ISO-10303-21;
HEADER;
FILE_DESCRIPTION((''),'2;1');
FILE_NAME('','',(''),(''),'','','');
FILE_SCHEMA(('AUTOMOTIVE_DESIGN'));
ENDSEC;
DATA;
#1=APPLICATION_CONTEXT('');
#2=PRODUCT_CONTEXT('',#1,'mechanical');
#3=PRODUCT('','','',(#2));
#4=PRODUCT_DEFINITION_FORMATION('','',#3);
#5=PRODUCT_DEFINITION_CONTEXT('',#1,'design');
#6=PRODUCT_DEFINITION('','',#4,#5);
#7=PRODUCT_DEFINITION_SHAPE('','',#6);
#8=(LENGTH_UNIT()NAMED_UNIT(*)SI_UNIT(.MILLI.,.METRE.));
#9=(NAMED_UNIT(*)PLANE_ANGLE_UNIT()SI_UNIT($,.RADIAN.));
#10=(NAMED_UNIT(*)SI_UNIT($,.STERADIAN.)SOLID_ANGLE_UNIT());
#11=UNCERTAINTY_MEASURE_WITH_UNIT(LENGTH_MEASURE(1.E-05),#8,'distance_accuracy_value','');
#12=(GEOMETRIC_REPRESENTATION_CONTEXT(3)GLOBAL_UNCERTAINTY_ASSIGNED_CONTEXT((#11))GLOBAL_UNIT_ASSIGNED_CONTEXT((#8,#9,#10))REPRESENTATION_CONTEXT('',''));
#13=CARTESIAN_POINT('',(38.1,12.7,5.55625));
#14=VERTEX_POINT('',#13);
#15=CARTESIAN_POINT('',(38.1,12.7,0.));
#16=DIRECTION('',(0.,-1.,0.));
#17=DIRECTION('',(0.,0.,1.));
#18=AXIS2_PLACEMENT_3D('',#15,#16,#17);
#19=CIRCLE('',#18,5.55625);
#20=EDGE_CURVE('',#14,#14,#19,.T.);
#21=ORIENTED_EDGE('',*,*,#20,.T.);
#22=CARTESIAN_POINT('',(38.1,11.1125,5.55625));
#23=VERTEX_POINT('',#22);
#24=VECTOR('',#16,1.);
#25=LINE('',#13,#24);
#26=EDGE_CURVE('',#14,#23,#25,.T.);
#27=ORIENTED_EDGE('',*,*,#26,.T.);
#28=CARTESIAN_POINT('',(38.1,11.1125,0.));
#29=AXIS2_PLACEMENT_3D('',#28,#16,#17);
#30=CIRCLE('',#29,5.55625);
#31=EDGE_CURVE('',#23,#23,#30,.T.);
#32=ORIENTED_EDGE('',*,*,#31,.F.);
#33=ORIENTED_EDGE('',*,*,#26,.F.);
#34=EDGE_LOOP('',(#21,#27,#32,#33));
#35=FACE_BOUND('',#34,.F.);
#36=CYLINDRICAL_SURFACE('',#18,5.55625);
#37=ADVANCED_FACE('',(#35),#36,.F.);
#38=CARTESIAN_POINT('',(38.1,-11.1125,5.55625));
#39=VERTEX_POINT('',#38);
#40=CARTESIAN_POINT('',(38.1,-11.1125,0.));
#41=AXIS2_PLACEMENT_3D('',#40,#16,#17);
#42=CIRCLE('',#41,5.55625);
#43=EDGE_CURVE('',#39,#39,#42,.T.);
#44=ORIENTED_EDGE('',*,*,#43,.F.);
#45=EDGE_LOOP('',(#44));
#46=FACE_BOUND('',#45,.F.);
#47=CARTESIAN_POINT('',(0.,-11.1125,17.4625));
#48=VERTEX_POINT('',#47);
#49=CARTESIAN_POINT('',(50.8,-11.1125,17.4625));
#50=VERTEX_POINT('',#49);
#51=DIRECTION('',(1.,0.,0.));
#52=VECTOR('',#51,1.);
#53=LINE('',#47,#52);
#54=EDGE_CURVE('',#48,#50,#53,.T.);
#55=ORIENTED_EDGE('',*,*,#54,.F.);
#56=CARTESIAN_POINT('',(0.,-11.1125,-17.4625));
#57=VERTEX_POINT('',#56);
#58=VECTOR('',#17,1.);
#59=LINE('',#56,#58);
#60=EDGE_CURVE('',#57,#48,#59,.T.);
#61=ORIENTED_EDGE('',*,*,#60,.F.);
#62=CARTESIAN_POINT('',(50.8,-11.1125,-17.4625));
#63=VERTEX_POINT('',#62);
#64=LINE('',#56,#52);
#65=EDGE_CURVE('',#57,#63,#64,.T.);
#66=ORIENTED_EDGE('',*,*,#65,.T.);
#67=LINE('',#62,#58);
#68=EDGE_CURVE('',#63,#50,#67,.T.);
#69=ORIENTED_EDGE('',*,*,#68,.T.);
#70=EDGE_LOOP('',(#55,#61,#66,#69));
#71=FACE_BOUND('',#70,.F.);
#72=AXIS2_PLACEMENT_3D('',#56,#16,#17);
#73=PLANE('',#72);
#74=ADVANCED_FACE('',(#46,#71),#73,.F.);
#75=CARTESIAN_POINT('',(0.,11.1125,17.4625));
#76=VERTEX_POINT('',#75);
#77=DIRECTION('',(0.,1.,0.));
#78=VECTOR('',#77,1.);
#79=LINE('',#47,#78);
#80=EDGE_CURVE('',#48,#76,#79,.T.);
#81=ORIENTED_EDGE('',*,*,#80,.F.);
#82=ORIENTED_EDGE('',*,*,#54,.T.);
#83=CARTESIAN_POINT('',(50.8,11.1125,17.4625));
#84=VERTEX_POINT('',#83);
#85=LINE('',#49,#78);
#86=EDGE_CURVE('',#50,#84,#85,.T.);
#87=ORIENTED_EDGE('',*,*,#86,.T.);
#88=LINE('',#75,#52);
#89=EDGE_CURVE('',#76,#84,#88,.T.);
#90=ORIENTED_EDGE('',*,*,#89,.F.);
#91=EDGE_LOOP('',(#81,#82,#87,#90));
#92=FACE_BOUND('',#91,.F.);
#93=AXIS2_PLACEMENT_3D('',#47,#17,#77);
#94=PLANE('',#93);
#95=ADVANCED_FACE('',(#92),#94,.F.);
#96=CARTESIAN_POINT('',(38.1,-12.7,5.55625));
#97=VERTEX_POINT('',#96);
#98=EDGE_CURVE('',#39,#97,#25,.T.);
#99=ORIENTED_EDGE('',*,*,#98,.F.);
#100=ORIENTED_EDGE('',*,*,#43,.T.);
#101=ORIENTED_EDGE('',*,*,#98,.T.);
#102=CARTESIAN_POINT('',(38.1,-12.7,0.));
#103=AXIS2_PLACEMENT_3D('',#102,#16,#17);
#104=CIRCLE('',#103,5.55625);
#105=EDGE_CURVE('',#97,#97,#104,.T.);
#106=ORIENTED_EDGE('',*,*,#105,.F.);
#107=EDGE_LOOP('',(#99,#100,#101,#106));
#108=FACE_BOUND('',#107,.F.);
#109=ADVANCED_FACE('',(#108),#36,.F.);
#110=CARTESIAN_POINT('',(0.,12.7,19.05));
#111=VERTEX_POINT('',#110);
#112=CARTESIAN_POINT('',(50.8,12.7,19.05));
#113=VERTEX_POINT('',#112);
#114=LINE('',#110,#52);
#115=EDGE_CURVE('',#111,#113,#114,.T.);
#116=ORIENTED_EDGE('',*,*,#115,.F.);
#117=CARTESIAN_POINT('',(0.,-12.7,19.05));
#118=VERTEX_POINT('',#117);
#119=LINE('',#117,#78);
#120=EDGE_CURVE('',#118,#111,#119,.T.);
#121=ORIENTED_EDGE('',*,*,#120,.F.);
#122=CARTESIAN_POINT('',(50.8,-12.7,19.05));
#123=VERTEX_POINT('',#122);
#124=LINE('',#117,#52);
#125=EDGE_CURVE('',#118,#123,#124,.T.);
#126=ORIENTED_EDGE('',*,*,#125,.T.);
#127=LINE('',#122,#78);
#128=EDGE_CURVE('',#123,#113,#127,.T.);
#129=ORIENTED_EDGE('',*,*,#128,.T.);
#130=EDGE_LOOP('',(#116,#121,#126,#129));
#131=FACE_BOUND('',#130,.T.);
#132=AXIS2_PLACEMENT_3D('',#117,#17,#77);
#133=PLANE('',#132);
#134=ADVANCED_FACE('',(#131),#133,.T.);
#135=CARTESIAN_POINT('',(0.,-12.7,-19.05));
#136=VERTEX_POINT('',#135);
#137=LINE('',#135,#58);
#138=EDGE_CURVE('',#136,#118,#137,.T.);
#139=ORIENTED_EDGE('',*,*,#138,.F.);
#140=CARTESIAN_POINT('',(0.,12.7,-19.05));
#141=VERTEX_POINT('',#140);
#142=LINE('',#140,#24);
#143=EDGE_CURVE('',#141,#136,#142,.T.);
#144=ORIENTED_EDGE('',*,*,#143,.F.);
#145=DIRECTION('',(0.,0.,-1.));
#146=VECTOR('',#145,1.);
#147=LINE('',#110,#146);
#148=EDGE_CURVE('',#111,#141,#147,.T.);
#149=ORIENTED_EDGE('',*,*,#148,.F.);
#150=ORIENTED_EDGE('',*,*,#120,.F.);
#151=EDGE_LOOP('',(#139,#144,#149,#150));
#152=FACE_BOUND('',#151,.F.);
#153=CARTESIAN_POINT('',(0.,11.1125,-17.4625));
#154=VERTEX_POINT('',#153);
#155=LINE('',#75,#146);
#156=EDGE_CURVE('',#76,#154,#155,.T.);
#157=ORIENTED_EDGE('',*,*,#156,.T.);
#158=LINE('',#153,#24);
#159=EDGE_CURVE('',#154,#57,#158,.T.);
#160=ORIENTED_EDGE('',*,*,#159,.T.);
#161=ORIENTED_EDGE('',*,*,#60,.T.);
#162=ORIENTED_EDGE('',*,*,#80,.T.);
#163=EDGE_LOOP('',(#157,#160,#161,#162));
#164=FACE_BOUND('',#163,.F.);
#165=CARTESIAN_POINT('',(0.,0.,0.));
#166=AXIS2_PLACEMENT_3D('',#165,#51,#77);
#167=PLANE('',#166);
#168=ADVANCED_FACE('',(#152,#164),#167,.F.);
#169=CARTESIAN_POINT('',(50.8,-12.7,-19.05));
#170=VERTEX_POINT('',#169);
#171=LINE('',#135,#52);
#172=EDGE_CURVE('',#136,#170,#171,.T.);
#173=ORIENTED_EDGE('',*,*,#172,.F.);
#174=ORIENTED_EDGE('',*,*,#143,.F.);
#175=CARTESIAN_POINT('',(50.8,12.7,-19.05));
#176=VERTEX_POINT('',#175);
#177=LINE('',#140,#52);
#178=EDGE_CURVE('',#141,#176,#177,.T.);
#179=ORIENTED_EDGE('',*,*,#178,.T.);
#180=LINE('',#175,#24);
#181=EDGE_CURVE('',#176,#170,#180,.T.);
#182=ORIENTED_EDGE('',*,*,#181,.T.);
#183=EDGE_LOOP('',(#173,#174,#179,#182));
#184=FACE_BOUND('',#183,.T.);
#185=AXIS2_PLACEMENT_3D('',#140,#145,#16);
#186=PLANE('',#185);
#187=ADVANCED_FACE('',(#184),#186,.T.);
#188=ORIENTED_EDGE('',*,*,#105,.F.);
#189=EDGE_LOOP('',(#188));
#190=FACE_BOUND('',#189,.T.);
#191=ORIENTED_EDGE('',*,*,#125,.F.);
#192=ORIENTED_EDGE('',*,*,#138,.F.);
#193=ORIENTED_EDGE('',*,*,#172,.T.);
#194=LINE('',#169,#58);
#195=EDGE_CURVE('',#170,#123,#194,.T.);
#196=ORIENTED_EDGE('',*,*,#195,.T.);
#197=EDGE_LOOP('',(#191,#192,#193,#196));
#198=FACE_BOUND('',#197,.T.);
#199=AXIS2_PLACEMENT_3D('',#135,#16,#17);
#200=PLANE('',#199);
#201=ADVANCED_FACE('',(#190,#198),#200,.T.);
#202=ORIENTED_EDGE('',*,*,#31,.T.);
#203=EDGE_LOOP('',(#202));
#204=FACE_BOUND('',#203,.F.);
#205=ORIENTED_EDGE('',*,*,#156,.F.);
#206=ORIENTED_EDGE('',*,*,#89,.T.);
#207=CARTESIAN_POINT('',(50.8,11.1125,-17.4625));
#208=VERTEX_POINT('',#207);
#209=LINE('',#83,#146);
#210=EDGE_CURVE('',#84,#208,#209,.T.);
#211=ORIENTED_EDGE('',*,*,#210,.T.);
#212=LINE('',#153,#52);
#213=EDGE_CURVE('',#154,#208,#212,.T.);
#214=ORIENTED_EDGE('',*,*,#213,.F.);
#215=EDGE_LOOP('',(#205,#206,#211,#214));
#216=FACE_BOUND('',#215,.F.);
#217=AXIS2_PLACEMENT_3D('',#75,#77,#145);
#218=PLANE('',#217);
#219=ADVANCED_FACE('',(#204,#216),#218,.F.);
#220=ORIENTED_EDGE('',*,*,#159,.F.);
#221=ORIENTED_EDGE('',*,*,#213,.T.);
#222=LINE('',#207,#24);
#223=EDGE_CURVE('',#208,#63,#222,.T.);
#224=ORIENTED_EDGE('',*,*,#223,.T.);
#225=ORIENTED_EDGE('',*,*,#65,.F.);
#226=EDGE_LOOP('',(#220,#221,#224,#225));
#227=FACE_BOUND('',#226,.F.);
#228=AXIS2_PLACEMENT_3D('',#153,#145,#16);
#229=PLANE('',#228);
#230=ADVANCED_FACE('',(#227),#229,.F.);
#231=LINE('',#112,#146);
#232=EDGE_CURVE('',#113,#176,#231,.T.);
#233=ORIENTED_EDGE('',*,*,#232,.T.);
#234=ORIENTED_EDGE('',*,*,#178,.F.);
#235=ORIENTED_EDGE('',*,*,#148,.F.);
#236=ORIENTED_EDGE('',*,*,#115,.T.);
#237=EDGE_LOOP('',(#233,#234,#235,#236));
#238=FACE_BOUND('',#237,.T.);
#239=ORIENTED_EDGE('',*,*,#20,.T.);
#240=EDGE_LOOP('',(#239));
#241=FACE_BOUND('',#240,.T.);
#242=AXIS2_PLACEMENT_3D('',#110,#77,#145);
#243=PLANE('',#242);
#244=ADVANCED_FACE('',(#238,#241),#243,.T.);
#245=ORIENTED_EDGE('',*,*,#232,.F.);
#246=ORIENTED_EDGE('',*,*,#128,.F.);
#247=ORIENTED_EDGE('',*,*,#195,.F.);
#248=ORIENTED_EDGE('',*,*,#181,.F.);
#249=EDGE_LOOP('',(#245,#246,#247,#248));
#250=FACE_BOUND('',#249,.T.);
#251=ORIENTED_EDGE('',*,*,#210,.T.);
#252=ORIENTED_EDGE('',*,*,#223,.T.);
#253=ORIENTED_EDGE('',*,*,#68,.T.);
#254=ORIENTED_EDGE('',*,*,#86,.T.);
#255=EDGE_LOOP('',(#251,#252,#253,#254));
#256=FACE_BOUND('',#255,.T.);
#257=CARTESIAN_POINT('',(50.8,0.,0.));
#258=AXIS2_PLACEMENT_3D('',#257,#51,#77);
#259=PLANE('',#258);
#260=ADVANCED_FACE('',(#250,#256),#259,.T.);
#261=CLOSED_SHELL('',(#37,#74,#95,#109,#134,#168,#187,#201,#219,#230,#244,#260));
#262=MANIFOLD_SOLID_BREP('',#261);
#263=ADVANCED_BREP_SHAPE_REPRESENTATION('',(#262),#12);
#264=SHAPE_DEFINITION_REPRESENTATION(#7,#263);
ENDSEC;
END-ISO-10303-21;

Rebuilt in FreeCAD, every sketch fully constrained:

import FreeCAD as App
import Part
import Sketcher
Q = App.Units.Quantity

doc = App.newDocument("Part")
params = doc.addObject("Spreadsheet::Sheet", "Params")
for row, (alias, value) in enumerate([
    ("sketch1_width", "1 in"),
    ("sketch1_height", "1.5 in"),
    ("pad1_length", "2 in"),
    ("sketch2_diameter", "0.4375 in"),
    ("hole_diameter", "0.4375 in"),
], start=1):
    params.set(f"A{row}", alias)
    params.set(f"B{row}", "=" + value)
    params.setAlias(f"B{row}", alias)

body = doc.addObject("PartDesign::Body", "Body")

# Sketch on YZ plane
sketch1 = body.newObject("Sketcher::SketchObject", "Sketch")
sketch1.AttachmentSupport = (doc.getObject("YZ_Plane"), [""])
sketch1.MapMode = "FlatFace"
sketch1.addGeometry(Part.LineSegment(App.Vector(13, 19, 0), App.Vector(-13, 19, 0)), False)
sketch1.addGeometry(Part.LineSegment(App.Vector(-13, 19, 0), App.Vector(-13, -19, 0)), False)
sketch1.addGeometry(Part.LineSegment(App.Vector(-13, -19, 0), App.Vector(13, -19, 0)), False)
sketch1.addGeometry(Part.LineSegment(App.Vector(13, -19, 0), App.Vector(13, 19, 0)), False)
sketch1.addGeometry(Part.LineSegment(App.Vector(-11, -17, 0), App.Vector(-11, 17, 0)), False)
sketch1.addGeometry(Part.LineSegment(App.Vector(-11, 17, 0), App.Vector(11, 17, 0)), False)
sketch1.addGeometry(Part.LineSegment(App.Vector(11, 17, 0), App.Vector(11, -17, 0)), False)
sketch1.addGeometry(Part.LineSegment(App.Vector(11, -17, 0), App.Vector(-11, -17, 0)), False)
sketch1.addConstraint(Sketcher.Constraint("Coincident", 0, 2, 1, 1))
sketch1.addConstraint(Sketcher.Constraint("Coincident", 1, 2, 2, 1))
sketch1.addConstraint(Sketcher.Constraint("Coincident", 2, 2, 3, 1))
sketch1.addConstraint(Sketcher.Constraint("Coincident", 3, 2, 0, 1))
sketch1.addConstraint(Sketcher.Constraint("Coincident", 4, 2, 5, 1))
sketch1.addConstraint(Sketcher.Constraint("Coincident", 5, 2, 6, 1))
sketch1.addConstraint(Sketcher.Constraint("Coincident", 6, 2, 7, 1))
sketch1.addConstraint(Sketcher.Constraint("Coincident", 7, 2, 4, 1))
sketch1.addConstraint(Sketcher.Constraint("Horizontal", 0))
sketch1.addConstraint(Sketcher.Constraint("Vertical", 1))
sketch1.addConstraint(Sketcher.Constraint("Horizontal", 2))
sketch1.addConstraint(Sketcher.Constraint("Vertical", 3))
sketch1.addConstraint(Sketcher.Constraint("Vertical", 4))
sketch1.addConstraint(Sketcher.Constraint("Horizontal", 5))
sketch1.addConstraint(Sketcher.Constraint("Vertical", 6))
sketch1.addConstraint(Sketcher.Constraint("Horizontal", 7))
sketch1.addConstraint(Sketcher.Constraint("Symmetric", 0, 2, 2, 2, -1, 1))
sketch1.addConstraint(Sketcher.Constraint("Symmetric", 4, 2, 6, 2, -1, 1))
sketch1.addConstraint(Sketcher.Constraint("DistanceX", 0, 2, 0, 1, Q("1 in")))
sketch1.addConstraint(Sketcher.Constraint("DistanceY", 1, 2, 1, 1, Q("1.5 in")))
sketch1.addConstraint(Sketcher.Constraint("DistanceX", 0, 2, 4, 2, Q("0.0625 in")))
sketch1.addConstraint(Sketcher.Constraint("DistanceY", 4, 2, 0, 2, Q("0.0625 in")))
sketch1.setExpression("Constraints[18]", "Params.sketch1_width")
sketch1.setExpression("Constraints[19]", "Params.sketch1_height")
pad1 = body.newObject("PartDesign::Pad", "Pad")
pad1.Profile = sketch1
pad1.setExpression("Length", "Params.pad1_length")

# Sketch on XZ plane
sketch2 = body.newObject("Sketcher::SketchObject", "Sketch001")
sketch2.AttachmentSupport = (doc.getObject("XZ_Plane"), [""])
sketch2.MapMode = "FlatFace"
sketch2.AttachmentOffset = App.Placement(App.Vector(0, 0, -0.5 * 25.4), App.Rotation())
sketch2.addGeometry(Part.Circle(App.Vector(38, 0, 0), App.Vector(0, 0, 1), 6), False)
sketch2.addConstraint(Sketcher.Constraint("PointOnObject", 0, 3, -1))
sketch2.addConstraint(Sketcher.Constraint("Diameter", 0, Q("0.4375 in")))
sketch2.addConstraint(Sketcher.Constraint("DistanceX", -1, 1, 0, 3, Q("1.5 in")))
sketch2.setExpression("Constraints[1]", "Params.sketch2_diameter")
doc.recompute()
hole = body.newObject("PartDesign::Hole", "Hole")
hole.Profile = sketch2
hole.ThreadType = "None"
hole.setExpression("Diameter", "Params.hole_diameter")
hole.DepthType = "ThroughAll"
hole.Reversed = True

doc.recompute()
